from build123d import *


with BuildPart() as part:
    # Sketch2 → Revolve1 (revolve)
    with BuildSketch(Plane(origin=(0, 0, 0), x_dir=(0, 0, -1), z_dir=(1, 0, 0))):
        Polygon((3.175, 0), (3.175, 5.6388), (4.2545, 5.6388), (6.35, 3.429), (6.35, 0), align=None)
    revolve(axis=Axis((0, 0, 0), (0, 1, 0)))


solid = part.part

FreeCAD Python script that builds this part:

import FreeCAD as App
import Part
import Sketcher

V = App.Vector
Q = App.Units.Quantity


def add_polygon(sketch, points):
    """Adds a closed chain of lines whose ends are joined by coincident constraints."""
    first, n = sketch.GeometryCount, len(points)
    for a, b in zip(points, points[1:] + points[:1]):
        sketch.addGeometry(Part.LineSegment(App.Vector(*a, 0), App.Vector(*b, 0)), False)
    for i in range(n):
        sketch.addConstraint(Sketcher.Constraint("Coincident", first + i, 2, first + (i + 1) % n, 1))

doc = App.newDocument("Part")
body = doc.addObject("PartDesign::Body", "Body")

sketch1 = body.newObject("Sketcher::SketchObject", "Sketch")
sketch1.AttachmentSupport = (doc.getObject("YZ_Plane"), [""])
sketch1.MapMode = "FlatFace"
add_polygon(sketch1, [(5.6388, -3.175), (0, -3.175), (0, -6.35), (3.429, -6.35), (5.6388, -4.2545)])
sketch1.addConstraint([
    Sketcher.Constraint("Horizontal", 0),
    Sketcher.Constraint("Vertical", 1),
    Sketcher.Constraint("Horizontal", 2),
    Sketcher.Constraint("Vertical", 4),
    Sketcher.Constraint("PointOnObject", 0, 2, -2),
    Sketcher.Constraint("DistanceX", 0, 2, 0, 1, Q("0.222 in")),
    Sketcher.Constraint("DistanceX", 2, 1, 2, 2, Q("0.135 in")),
    Sketcher.Constraint("DistanceY", 1, 2, 1, 1, Q("0.125 in")),
    Sketcher.Constraint("DistanceY", 1, 2, -1, 1, Q("0.25 in")),
    Sketcher.Constraint("DistanceY", 4, 1, 4, 2, Q("0.0425 in")),
])
revolution = body.newObject("PartDesign::Revolution", "Revolution")
revolution.Profile = sketch1
revolution.ReferenceAxis = (sketch1, ["H_Axis"])
revolution.Angle = 360

doc.recompute()
